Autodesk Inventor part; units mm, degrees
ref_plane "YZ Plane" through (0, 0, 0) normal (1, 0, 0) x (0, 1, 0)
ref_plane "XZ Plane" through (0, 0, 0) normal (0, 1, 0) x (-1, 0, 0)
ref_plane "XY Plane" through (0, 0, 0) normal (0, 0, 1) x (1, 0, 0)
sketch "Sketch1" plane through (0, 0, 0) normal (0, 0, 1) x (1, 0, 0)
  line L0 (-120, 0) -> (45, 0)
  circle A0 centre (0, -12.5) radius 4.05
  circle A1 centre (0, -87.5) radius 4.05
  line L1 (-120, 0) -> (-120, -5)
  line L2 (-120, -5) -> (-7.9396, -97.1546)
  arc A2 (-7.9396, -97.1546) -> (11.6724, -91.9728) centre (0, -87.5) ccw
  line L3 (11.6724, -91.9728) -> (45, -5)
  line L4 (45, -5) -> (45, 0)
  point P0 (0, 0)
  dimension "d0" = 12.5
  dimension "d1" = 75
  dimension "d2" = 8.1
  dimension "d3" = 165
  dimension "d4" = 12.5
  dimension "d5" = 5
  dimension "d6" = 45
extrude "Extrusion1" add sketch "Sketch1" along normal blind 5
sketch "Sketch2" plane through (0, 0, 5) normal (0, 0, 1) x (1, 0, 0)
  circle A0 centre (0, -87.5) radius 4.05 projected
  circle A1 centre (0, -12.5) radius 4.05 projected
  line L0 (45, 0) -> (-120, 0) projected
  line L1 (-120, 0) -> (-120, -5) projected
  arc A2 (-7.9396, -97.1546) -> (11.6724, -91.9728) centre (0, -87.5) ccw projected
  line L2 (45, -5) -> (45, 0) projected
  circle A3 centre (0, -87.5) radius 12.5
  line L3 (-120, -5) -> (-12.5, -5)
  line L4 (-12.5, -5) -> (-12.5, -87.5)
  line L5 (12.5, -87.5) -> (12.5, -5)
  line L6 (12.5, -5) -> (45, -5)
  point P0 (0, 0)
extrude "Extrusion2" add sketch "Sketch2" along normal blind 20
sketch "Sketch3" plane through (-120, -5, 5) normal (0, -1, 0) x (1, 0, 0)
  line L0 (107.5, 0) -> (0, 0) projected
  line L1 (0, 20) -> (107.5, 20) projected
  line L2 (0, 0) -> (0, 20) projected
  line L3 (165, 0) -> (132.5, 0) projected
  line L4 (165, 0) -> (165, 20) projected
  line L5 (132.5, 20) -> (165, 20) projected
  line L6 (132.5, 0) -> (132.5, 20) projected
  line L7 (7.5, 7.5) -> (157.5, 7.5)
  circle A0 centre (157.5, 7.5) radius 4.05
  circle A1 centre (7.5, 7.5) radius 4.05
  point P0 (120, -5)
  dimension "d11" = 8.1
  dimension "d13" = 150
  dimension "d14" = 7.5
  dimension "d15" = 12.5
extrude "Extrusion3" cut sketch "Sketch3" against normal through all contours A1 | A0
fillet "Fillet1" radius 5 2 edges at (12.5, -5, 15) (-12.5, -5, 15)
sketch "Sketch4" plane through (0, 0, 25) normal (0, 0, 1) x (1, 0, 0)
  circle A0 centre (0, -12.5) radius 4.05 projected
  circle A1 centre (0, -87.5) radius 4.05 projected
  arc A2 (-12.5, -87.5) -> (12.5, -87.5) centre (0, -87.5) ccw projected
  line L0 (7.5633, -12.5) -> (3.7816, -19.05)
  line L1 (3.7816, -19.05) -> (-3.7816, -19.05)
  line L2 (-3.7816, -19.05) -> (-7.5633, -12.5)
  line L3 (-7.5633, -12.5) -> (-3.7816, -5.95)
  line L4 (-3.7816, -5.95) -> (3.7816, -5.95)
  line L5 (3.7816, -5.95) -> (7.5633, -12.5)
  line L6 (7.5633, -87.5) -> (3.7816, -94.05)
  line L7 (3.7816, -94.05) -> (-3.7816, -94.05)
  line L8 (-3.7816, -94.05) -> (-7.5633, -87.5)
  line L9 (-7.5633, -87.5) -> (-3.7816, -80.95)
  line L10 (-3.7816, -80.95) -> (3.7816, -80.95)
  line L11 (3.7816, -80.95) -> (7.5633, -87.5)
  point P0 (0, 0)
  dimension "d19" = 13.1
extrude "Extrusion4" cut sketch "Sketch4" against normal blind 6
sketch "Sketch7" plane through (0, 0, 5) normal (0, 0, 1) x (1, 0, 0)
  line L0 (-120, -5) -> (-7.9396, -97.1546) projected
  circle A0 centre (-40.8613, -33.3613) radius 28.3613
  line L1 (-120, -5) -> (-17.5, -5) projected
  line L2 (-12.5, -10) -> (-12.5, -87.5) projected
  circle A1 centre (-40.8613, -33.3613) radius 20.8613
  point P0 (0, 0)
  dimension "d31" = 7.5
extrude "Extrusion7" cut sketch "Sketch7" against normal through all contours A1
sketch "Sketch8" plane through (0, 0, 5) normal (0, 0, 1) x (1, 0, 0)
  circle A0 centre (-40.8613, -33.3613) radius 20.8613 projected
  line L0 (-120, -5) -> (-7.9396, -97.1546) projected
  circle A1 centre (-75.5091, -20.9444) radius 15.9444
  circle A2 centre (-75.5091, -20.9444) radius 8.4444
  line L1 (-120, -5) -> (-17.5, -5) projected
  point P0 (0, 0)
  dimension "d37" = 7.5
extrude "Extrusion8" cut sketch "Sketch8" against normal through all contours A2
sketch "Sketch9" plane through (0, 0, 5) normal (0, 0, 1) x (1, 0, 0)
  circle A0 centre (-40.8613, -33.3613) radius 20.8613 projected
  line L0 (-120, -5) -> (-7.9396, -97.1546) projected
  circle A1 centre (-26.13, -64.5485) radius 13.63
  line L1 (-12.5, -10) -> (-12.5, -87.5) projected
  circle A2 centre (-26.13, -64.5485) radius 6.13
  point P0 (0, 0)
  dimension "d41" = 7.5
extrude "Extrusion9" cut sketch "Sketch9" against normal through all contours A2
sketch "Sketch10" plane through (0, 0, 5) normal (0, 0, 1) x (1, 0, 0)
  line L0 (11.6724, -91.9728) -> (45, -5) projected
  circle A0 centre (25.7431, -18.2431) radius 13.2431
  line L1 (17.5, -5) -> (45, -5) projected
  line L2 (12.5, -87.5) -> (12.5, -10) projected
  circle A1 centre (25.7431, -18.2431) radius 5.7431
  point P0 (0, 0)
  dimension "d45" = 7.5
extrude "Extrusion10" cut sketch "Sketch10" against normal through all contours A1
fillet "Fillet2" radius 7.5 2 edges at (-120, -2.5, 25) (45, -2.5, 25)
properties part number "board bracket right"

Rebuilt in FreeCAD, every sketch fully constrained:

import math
import FreeCAD as App
import Part
import Sketcher
Q = App.Units.Quantity


def edges_at(feature, points):
    """Names of the edges that pass closest to the given points."""
    edges = feature.Shape.Edges
    near = lambda p: min(range(len(edges)), key=lambda i: edges[i].distToShape(Part.Vertex(*p))[0])
    return sorted({f"Edge{near(p) + 1}" for p in points})


def add_polygon(sketch, points):
    """Adds a closed chain of lines whose ends are joined by coincident constraints."""
    first, n = sketch.GeometryCount, len(points)
    for a, b in zip(points, points[1:] + points[:1]):
        sketch.addGeometry(Part.LineSegment(App.Vector(*a, 0), App.Vector(*b, 0)), False)
    for i in range(n):
        sketch.addConstraint(Sketcher.Constraint("Coincident", first + i, 2, first + (i + 1) % n, 1))

doc = App.newDocument("Part")
body = doc.addObject("PartDesign::Body", "Body")

# Sketch on XY plane
sketch1 = body.newObject("Sketcher::SketchObject", "Sketch")
sketch1.AttachmentSupport = (doc.getObject("XY_Plane"), [""])
sketch1.MapMode = "FlatFace"
sketch1.addGeometry([
    Part.LineSegment(App.Vector(45, 0, 0), App.Vector(-120, 0, 0)),  # 0
    Part.LineSegment(App.Vector(-120, 0, 0), App.Vector(-120, -5, 0)),  # 1
    Part.LineSegment(App.Vector(-120, -5, 0), App.Vector(-7.9, -97.2, 0)),  # 2
    Part.ArcOfCircle(Part.Circle(App.Vector(0, -87.5, 0), App.Vector(0, 0, 1), 12.5), math.radians(-129), math.radians(-21)),  # 3
    Part.LineSegment(App.Vector(11.7, -92, 0), App.Vector(45, -5, 0)),  # 4
    Part.LineSegment(App.Vector(45, -5, 0), App.Vector(45, 0, 0)),  # 5
    Part.Circle(App.Vector(0, -87.5, 0), App.Vector(0, 0, 1), 4),  # 6
    Part.Circle(App.Vector(0, -12.5, 0), App.Vector(0, 0, 1), 4),  # 7
], False)
sketch1.addConstraint([
    Sketcher.Constraint("Coincident", 0, 2, 1, 1),
    Sketcher.Constraint("Coincident", 1, 2, 2, 1),
    Sketcher.Constraint("Tangent", 2, 2, 3, 1),
    Sketcher.Constraint("Tangent", 3, 2, 4, 1),
    Sketcher.Constraint("Coincident", 4, 2, 5, 1),
    Sketcher.Constraint("Coincident", 5, 2, 0, 1),
    Sketcher.Constraint("Horizontal", 0),
    Sketcher.Constraint("Vertical", 1),
    Sketcher.Constraint("Vertical", 5),
    Sketcher.Constraint("Coincident", 6, 3, 3, 3),
    Sketcher.Constraint("Equal", 6, 7),
    Sketcher.Constraint("PointOnObject", 3, 3, -2),
    Sketcher.Constraint("PointOnObject", 7, 3, -2),
    Sketcher.Constraint("PointOnObject", 0, 2, -1),
    Sketcher.Constraint("Horizontal", 1, 2, 4, 2),
    Sketcher.Constraint("Diameter", 6, 8.1),
    Sketcher.Constraint("Radius", 3, 12.5),
    Sketcher.Constraint("DistanceX", 0, 2, 0, 1, 165.0),
    Sketcher.Constraint("DistanceY", 1, 2, 1, 1, 5.0),
    Sketcher.Constraint("DistanceX", -1, 1, 4, 2, 45.0),
    Sketcher.Constraint("DistanceY", 3, 3, 7, 3, 75.0),
    Sketcher.Constraint("DistanceY", 7, 3, -1, 1, 12.5),
])
pad1 = body.newObject("PartDesign::Pad", "Pad")
pad1.Profile = sketch1
pad1.Length = 5

# Sketch on XY plane
sketch2 = body.newObject("Sketcher::SketchObject", "Sketch001")
sketch2.AttachmentSupport = (doc.getObject("XY_Plane"), [""])
sketch2.MapMode = "FlatFace"
sketch2.AttachmentOffset = App.Placement(App.Vector(0, 0, 5), App.Rotation())
sketch2.addGeometry([
    Part.LineSegment(App.Vector(45, -5, 0), App.Vector(45, 0, 0)),  # 0
    Part.LineSegment(App.Vector(45, 0, 0), App.Vector(-120, 0, 0)),  # 1
    Part.LineSegment(App.Vector(-120, 0, 0), App.Vector(-120, -5, 0)),  # 2
    Part.LineSegment(App.Vector(-120, -5, 0), App.Vector(-12.5, -5, 0)),  # 3
    Part.LineSegment(App.Vector(-12.5, -5, 0), App.Vector(-12.5, -87.5, 0)),  # 4
    Part.ArcOfCircle(Part.Circle(App.Vector(0, -87.5, 0), App.Vector(0, 0, 1), 12.5), math.radians(180), math.radians(231)),  # 5
    Part.ArcOfCircle(Part.Circle(App.Vector(0, -87.5, 0), App.Vector(0, 0, 1), 12.5), math.radians(-129), math.radians(-21)),  # 6
    Part.ArcOfCircle(Part.Circle(App.Vector(0, -87.5, 0), App.Vector(0, 0, 1), 12.5), math.radians(-21), math.radians(0)),  # 7
    Part.LineSegment(App.Vector(12.5, -87.5, 0), App.Vector(12.5, -5, 0)),  # 8
    Part.LineSegment(App.Vector(12.5, -5, 0), App.Vector(45, -5, 0)),  # 9
    Part.Circle(App.Vector(0, -12.5, 0), App.Vector(0, 0, 1), 4),  # 10
    Part.Circle(App.Vector(0, -87.5, 0), App.Vector(0, 0, 1), 4),  # 11
], False)
sketch2.addConstraint([
    Sketcher.Constraint("Coincident", 0, 2, 1, 1),
    Sketcher.Constraint("Coincident", 1, 2, 2, 1),
    Sketcher.Constraint("Coincident", 2, 2, 3, 1),
    Sketcher.Constraint("Coincident", 3, 2, 4, 1),
    Sketcher.Constraint("Tangent", 4, 2, 5, 1),
    Sketcher.Constraint("Tangent", 5, 2, 6, 1),
    Sketcher.Constraint("Tangent", 6, 2, 7, 1),
    Sketcher.Constraint("Tangent", 7, 2, 8, 1),
    Sketcher.Constraint("Coincident", 8, 2, 9, 1),
    Sketcher.Constraint("Coincident", 9, 2, 0, 1),
    Sketcher.Constraint("Vertical", 0),
    Sketcher.Constraint("Horizontal", 1),
    Sketcher.Constraint("Vertical", 2),
    Sketcher.Constraint("Horizontal", 3),
    Sketcher.Constraint("Vertical", 4),
    Sketcher.Constraint("Vertical", 8),
    Sketcher.Constraint("Horizontal", 9),
    Sketcher.Constraint("Coincident", 7, 3, 5, 3),
    Sketcher.Constraint("Coincident", 11, 3, 5, 3),
    Sketcher.Constraint("Equal", 10, 11),
    Sketcher.Constraint("Symmetric", 3, 2, 8, 2, -2),
    Sketcher.Constraint("PointOnObject", 10, 3, -2),
    Sketcher.Constraint("PointOnObject", 0, 2, -1),
    Sketcher.Constraint("Diameter", 10, 8.1),
    Sketcher.Constraint("Radius", 5, 12.5),
    Sketcher.Constraint("DistanceX", 1, 2, 1, 1, 165.0),
    Sketcher.Constraint("DistanceY", 0, 1, 0, 2, 5.0),
    Sketcher.Constraint("DistanceX", 3, 1, 3, 2, 107.5),
    Sketcher.Constraint("DistanceY", 4, 2, 4, 1, 82.5),
    Sketcher.Constraint("DistanceY", 5, 3, 10, 3, 75.0),
    Sketcher.Constraint("DistanceX", 5, 2, 6, 2, 19.612),
    Sketcher.Constraint("DistanceX", 5, 2, -1, 1, 7.9396),
])
pad2 = body.newObject("PartDesign::Pad", "Pad001")
pad2.Profile = sketch2
pad2.Length = 20

# Sketch on XZ plane
sketch3 = body.newObject("Sketcher::SketchObject", "Sketch002")
sketch3.AttachmentSupport = (doc.getObject("XZ_Plane"), [""])
sketch3.MapMode = "FlatFace"
sketch3.AttachmentOffset = App.Placement(App.Vector(0, 0, 5), App.Rotation())
sketch3.addGeometry([
    Part.Circle(App.Vector(-112.5, 12.5, 0), App.Vector(0, 0, 1), 4),
    Part.Circle(App.Vector(37.5, 12.5, 0), App.Vector(0, 0, 1), 4),
], False)
sketch3.addConstraint([
    Sketcher.Constraint("Equal", 0, 1),
    Sketcher.Constraint("Horizontal", 0, 3, 1, 3),
    Sketcher.Constraint("Diameter", 0, 8.1),
    Sketcher.Constraint("DistanceX", 0, 3, 1, 3, 150.0),
    Sketcher.Constraint("DistanceY", -1, 1, 0, 3, 12.5),
    Sketcher.Constraint("DistanceX", 0, 3, -1, 1, 112.5),
])
pocket1 = body.newObject("PartDesign::Pocket", "Pocket")
pocket1.Profile = sketch3
pocket1.Type = "ThroughAll"
doc.recompute()

fillet = body.newObject("PartDesign::Fillet", "Fillet")
fillet.Base = (pocket1, edges_at(pocket1, [(12.5, -5, 15), (-12.5, -5, 15)]))
fillet.Radius = 5

# Sketch on XY plane
sketch4 = body.newObject("Sketcher::SketchObject", "Sketch003")
sketch4.AttachmentSupport = (doc.getObject("XY_Plane"), [""])
sketch4.MapMode = "FlatFace"
sketch4.AttachmentOffset = App.Placement(App.Vector(0, 0, 25), App.Rotation())
add_polygon(sketch4, [(3.8, -19.1), (7.6, -12.5), (3.8, -6), (-3.8, -6), (-7.6, -12.5), (-3.8, -19.1)])  # lines 0-5
sketch4.addGeometry(Part.Circle(App.Vector(0, -12.5, 0), App.Vector(0, 0, 1), 4), False)  # 6
add_polygon(sketch4, [(3.8, -94), (7.6, -87.5), (3.8, -81), (-3.8, -81), (-7.6, -87.5), (-3.8, -94)])  # lines 7-12
sketch4.addGeometry(Part.Circle(App.Vector(0, -87.5, 0), App.Vector(0, 0, 1), 4), False)  # 13
sketch4.addConstraint([
    Sketcher.Constraint("Horizontal", 2),
    Sketcher.Constraint("Horizontal", 5),
    Sketcher.Constraint("Horizontal", 9),
    Sketcher.Constraint("Horizontal", 12),
    Sketcher.Constraint("Equal", 6, 13),
    Sketcher.Constraint("Symmetric", 0, 2, 3, 2, -2),
    Sketcher.Constraint("Symmetric", 7, 2, 10, 2, -2),
    Sketcher.Constraint("PointOnObject", 6, 3, -2),
    Sketcher.Constraint("PointOnObject", 13, 3, -2),
    Sketcher.Constraint("Parallel", 0, 3),
    Sketcher.Constraint("Parallel", 1, 4),
    Sketcher.Constraint("Parallel", 3, 7),
    Sketcher.Constraint("Parallel", 4, 8),
    Sketcher.Constraint("Parallel", 7, 10),
    Sketcher.Constraint("Parallel", 8, 11),
    Sketcher.Constraint("Horizontal", 6, 3, 0, 2),
    Sketcher.Constraint("Horizontal", 13, 3, 7, 2),
    Sketcher.Constraint("Vertical", 2, 2, 4, 2),
    Sketcher.Constraint("Vertical", 1, 2, 5, 2),
    Sketcher.Constraint("Vertical", 0, 2, 7, 2),
    Sketcher.Constraint("Vertical", 5, 2, 8, 2),
    Sketcher.Constraint("Vertical", 9, 2, 11, 2),
    Sketcher.Constraint("Diameter", 6, 8.1),
    Sketcher.Constraint("DistanceY", 4, 2, 2, 2, 13.1),
    Sketcher.Constraint("Angle", 0, Q("59.9996 deg")),
    Sketcher.Constraint("DistanceY", 13, 3, 6, 3, 75.0),
    Sketcher.Constraint("DistanceY", 6, 3, -1, 1, 12.5),
    Sketcher.Constraint("DistanceX", 2, 2, 2, 1, 7.5632),
])
pocket2 = body.newObject("PartDesign::Pocket", "Pocket001")
pocket2.Profile = sketch4
pocket2.Length = 6

# Sketch on XY plane
sketch5 = body.newObject("Sketcher::SketchObject", "Sketch004")
sketch5.AttachmentSupport = (doc.getObject("XY_Plane"), [""])
sketch5.MapMode = "FlatFace"
sketch5.AttachmentOffset = App.Placement(App.Vector(0, 0, 5), App.Rotation())
sketch5.addGeometry(Part.Circle(App.Vector(-41, -33, 0), App.Vector(0, 0, 1), 21), False)
sketch5.addConstraint([
    Sketcher.Constraint("Diameter", 0, 41.7226),
    Sketcher.Constraint("DistanceX", 0, 3, -1, 1, 40.8613),
    Sketcher.Constraint("DistanceY", 0, 3, -1, 1, 33.3613),
])
pocket3 = body.newObject("PartDesign::Pocket", "Pocket002")
pocket3.Profile = sketch5
pocket3.Type = "ThroughAll"

# Sketch on XY plane
sketch6 = body.newObject("Sketcher::SketchObject", "Sketch005")
sketch6.AttachmentSupport = (doc.getObject("XY_Plane"), [""])
sketch6.MapMode = "FlatFace"
sketch6.AttachmentOffset = App.Placement(App.Vector(0, 0, 5), App.Rotation())
sketch6.addGeometry(Part.Circle(App.Vector(-76, -21, 0), App.Vector(0, 0, 1), 8), False)
sketch6.addConstraint([
    Sketcher.Constraint("Diameter", 0, 16.8888),
    Sketcher.Constraint("DistanceX", 0, 3, -1, 1, 75.509),
    Sketcher.Constraint("DistanceY", 0, 3, -1, 1, 20.9444),
])
pocket4 = body.newObject("PartDesign::Pocket", "Pocket003")
pocket4.Profile = sketch6
pocket4.Type = "ThroughAll"

# Sketch on XY plane
sketch7 = body.newObject("Sketcher::SketchObject", "Sketch006")
sketch7.AttachmentSupport = (doc.getObject("XY_Plane"), [""])
sketch7.MapMode = "FlatFace"
sketch7.AttachmentOffset = App.Placement(App.Vector(0, 0, 5), App.Rotation())
sketch7.addGeometry(Part.Circle(App.Vector(-26, -65, 0), App.Vector(0, 0, 1), 6), False)
sketch7.addConstraint([
    Sketcher.Constraint("Diameter", 0, 12.26),
    Sketcher.Constraint("DistanceX", 0, 3, -1, 1, 26.13),
    Sketcher.Constraint("DistanceY", 0, 3, -1, 1, 64.5485),
])
pocket5 = body.newObject("PartDesign::Pocket", "Pocket004")
pocket5.Profile = sketch7
pocket5.Type = "ThroughAll"

# Sketch on XY plane
sketch8 = body.newObject("Sketcher::SketchObject", "Sketch007")
sketch8.AttachmentSupport = (doc.getObject("XY_Plane"), [""])
sketch8.MapMode = "FlatFace"
sketch8.AttachmentOffset = App.Placement(App.Vector(0, 0, 5), App.Rotation())
sketch8.addGeometry(Part.Circle(App.Vector(26, -18, 0), App.Vector(0, 0, 1), 6), False)
sketch8.addConstraint([
    Sketcher.Constraint("Diameter", 0, 11.4862),
    Sketcher.Constraint("DistanceX", -1, 1, 0, 3, 25.743),
    Sketcher.Constraint("DistanceY", 0, 3, -1, 1, 18.243),
])
pocket6 = body.newObject("PartDesign::Pocket", "Pocket005")
pocket6.Profile = sketch8
pocket6.Type = "ThroughAll"
doc.recompute()

fillet2 = body.newObject("PartDesign::Fillet", "Fillet001")
fillet2.Base = (pocket6, edges_at(pocket6, [(-120, -2.5, 25), (45, -2.5, 25)]))
fillet2.Radius = 7.5

doc.recompute()
